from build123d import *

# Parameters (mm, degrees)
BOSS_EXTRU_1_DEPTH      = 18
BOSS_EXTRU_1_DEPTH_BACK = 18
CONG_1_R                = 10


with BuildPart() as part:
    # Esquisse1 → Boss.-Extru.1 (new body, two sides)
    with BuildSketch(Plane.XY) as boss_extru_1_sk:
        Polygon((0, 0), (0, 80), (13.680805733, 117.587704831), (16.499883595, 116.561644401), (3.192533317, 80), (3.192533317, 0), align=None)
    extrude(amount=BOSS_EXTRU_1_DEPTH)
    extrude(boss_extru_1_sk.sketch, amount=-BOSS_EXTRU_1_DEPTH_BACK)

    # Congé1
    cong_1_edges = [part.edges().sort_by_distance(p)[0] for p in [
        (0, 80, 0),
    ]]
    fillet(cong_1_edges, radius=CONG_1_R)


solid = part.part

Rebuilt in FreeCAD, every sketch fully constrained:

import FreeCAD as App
import Part
import Sketcher
from FreeCAD import Vector
Q = App.Units.Quantity


def edges_at(feature, points):
    """Names of the edges that pass closest to the given points."""
    edges = feature.Shape.Edges
    near = lambda p: min(range(len(edges)), key=lambda i: edges[i].distToShape(Part.Vertex(*p))[0])
    return sorted({f"Edge{near(p) + 1}" for p in points})


def add_polygon(sketch, points):
    """Adds a closed chain of lines whose ends are joined by coincident constraints."""
    first, n = sketch.GeometryCount, len(points)
    for a, b in zip(points, points[1:] + points[:1]):
        sketch.addGeometry(Part.LineSegment(App.Vector(*a, 0), App.Vector(*b, 0)), False)
    for i in range(n):
        sketch.addConstraint(Sketcher.Constraint("Coincident", first + i, 2, first + (i + 1) % n, 1))

doc = App.newDocument("Part")
body = doc.addObject("PartDesign::Body", "Body")

# Sketch on XY plane
sketch1 = body.newObject("Sketcher::SketchObject", "Sketch")
sketch1.AttachmentSupport = (doc.getObject("XY_Plane"), [""])
sketch1.MapMode = "FlatFace"
add_polygon(sketch1, [(0, 80), (0, 0), (3.192533, 0), (3.192533, 80), (16.499884, 116.561644), (13.680806, 117.587705)])  # lines 0-5
sketch1.addConstraint(Sketcher.Constraint("Vertical", 0))
sketch1.addConstraint(Sketcher.Constraint("Horizontal", 1))
sketch1.addConstraint(Sketcher.Constraint("Vertical", 2))
sketch1.addConstraint(Sketcher.Constraint("Coincident", 0, 2, -1, 1))
sketch1.addConstraint(Sketcher.Constraint("Perpendicular", 3, 4))
sketch1.addConstraint(Sketcher.Constraint("Perpendicular", 4, 5))
sketch1.addConstraint(Sketcher.Constraint("Horizontal", 2, 2, 5, 2))
sketch1.addConstraint(Sketcher.Constraint("DistanceY", 0, 2, 0, 1, 80.0))
sketch1.addConstraint(Sketcher.Constraint("Angle", 3, Q("70 deg")))
sketch1.addConstraint(Sketcher.Constraint("Distance", 4, 3.0))
sketch1.addConstraint(Sketcher.Constraint("Distance", 5, 40.0))
pad1 = body.newObject("PartDesign::Pad", "Pad")
pad1.Profile = sketch1
pad1.Type = "TwoLengths"
pad1.Length = 18
pad1.Length2 = 18
doc.recompute()

fillet = body.newObject("PartDesign::Fillet", "Fillet")
fillet.Base = (pad1, edges_at(pad1, [(0, 80, 0)]))
fillet.Radius = 10

doc.recompute()
